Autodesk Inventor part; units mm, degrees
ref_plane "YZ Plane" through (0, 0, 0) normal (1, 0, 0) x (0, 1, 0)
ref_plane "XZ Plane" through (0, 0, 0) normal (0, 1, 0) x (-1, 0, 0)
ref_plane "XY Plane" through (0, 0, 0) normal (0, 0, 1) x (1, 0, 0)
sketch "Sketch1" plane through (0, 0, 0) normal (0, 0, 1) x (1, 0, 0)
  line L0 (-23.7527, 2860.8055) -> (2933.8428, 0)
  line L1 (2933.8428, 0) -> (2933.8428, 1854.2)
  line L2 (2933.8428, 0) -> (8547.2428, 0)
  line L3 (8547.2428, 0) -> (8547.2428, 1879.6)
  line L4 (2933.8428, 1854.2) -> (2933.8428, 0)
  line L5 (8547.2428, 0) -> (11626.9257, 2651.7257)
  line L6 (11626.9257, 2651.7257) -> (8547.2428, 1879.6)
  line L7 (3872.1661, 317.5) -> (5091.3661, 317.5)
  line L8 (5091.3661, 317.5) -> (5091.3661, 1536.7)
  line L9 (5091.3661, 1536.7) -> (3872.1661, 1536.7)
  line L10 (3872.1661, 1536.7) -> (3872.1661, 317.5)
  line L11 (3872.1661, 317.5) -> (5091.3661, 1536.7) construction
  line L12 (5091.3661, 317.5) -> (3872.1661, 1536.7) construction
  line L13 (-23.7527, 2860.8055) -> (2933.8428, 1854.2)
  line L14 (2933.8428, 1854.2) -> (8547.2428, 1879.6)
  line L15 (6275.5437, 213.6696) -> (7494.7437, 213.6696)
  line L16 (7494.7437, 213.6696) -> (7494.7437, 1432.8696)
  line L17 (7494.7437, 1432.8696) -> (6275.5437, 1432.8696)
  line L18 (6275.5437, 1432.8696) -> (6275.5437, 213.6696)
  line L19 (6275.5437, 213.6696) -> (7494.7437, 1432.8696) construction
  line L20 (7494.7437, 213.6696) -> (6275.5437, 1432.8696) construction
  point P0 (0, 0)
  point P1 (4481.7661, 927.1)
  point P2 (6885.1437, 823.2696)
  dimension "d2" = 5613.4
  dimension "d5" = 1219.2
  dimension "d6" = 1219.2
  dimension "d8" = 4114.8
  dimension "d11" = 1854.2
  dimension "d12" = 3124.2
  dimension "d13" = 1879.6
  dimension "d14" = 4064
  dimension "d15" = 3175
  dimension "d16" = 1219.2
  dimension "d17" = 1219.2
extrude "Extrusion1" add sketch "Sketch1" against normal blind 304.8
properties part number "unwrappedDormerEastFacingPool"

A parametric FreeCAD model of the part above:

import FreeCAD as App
import Part
import Sketcher

V = App.Vector
Q = App.Units.Quantity


def add_polygon(sketch, points):
    """Adds a closed chain of lines whose ends are joined by coincident constraints."""
    first, n = sketch.GeometryCount, len(points)
    for a, b in zip(points, points[1:] + points[:1]):
        sketch.addGeometry(Part.LineSegment(App.Vector(*a, 0), App.Vector(*b, 0)), False)
    for i in range(n):
        sketch.addConstraint(Sketcher.Constraint("Coincident", first + i, 2, first + (i + 1) % n, 1))

doc = App.newDocument("Part")
body = doc.addObject("PartDesign::Body", "Body")

sketch1 = body.newObject("Sketcher::SketchObject", "Sketch")
sketch1.AttachmentSupport = (doc.getObject("XY_Plane"), [""])
sketch1.MapMode = "FlatFace"
add_polygon(sketch1, [(2934, 1854), (-24, 2861), (2934, 0), (8547, 0), (11627, 2652), (8547, 1880)])
add_polygon(sketch1, [(6276, 214), (6276, 1433), (7495, 1433), (7495, 214)])
add_polygon(sketch1, [(5091, 318), (3872, 318), (3872, 1537), (5091, 1537)])
sketch1.addConstraint(Sketcher.Constraint("Horizontal", 2))
sketch1.addConstraint(Sketcher.Constraint("Vertical", 6))
sketch1.addConstraint(Sketcher.Constraint("Horizontal", 7))
sketch1.addConstraint(Sketcher.Constraint("Vertical", 8))
sketch1.addConstraint(Sketcher.Constraint("Horizontal", 9))
sketch1.addConstraint(Sketcher.Constraint("Horizontal", 10))
sketch1.addConstraint(Sketcher.Constraint("Vertical", 11))
sketch1.addConstraint(Sketcher.Constraint("Horizontal", 12))
sketch1.addConstraint(Sketcher.Constraint("Vertical", 13))
sketch1.addConstraint(Sketcher.Constraint("PointOnObject", 1, 2, -1))
sketch1.addConstraint(Sketcher.Constraint("Vertical", 2, 2, 4, 2))
sketch1.addConstraint(Sketcher.Constraint("Vertical", 1, 2, 5, 2))
sketch1.addConstraint(Sketcher.Constraint("Equal", 9, 10))
sketch1.addConstraint(Sketcher.Constraint("Equal", 12, 6))
sketch1.addConstraint(Sketcher.Constraint("Equal", 8, 11))
sketch1.addConstraint(Sketcher.Constraint("DistanceX", 2, 1, 2, 2, Q("221 in")))
sketch1.addConstraint(Sketcher.Constraint("DistanceX", 7, 1, 7, 2, Q("48 in")))
sketch1.addConstraint(Sketcher.Constraint("Distance", 0, Q("123 in")))
sketch1.addConstraint(Sketcher.Constraint("Distance", 1, Q("162 in")))
sketch1.addConstraint(Sketcher.Constraint("Distance", 3, Q("160 in")))
sketch1.addConstraint(Sketcher.Constraint("Distance", 4, Q("125 in")))
sketch1.addConstraint(Sketcher.Constraint("DistanceY", -1, 1, 4, 2, Q("74 in")))
sketch1.addConstraint(Sketcher.Constraint("DistanceY", -1, 1, 5, 2, Q("73 in")))
sketch1.addConstraint(Sketcher.Constraint("DistanceY", -1, 1, 10, 2, Q("12.5 in")))
sketch1.addConstraint(Sketcher.Constraint("DistanceY", -1, 1, 6, 2, Q("56.4122 in")))
sketch1.addConstraint(Sketcher.Constraint("DistanceX", 0, 2, -1, 1, Q("23.7527 mm")))
sketch1.addConstraint(Sketcher.Constraint("DistanceX", -1, 1, 6, 2, Q("6275.5437 mm")))
sketch1.addConstraint(Sketcher.Constraint("DistanceX", -1, 1, 10, 2, Q("3872.166 mm")))
pad1 = body.newObject("PartDesign::Pad", "Pad")
pad1.Profile = sketch1
pad1.Length = Q("12 in")
pad1.Reversed = True

doc.recompute()
